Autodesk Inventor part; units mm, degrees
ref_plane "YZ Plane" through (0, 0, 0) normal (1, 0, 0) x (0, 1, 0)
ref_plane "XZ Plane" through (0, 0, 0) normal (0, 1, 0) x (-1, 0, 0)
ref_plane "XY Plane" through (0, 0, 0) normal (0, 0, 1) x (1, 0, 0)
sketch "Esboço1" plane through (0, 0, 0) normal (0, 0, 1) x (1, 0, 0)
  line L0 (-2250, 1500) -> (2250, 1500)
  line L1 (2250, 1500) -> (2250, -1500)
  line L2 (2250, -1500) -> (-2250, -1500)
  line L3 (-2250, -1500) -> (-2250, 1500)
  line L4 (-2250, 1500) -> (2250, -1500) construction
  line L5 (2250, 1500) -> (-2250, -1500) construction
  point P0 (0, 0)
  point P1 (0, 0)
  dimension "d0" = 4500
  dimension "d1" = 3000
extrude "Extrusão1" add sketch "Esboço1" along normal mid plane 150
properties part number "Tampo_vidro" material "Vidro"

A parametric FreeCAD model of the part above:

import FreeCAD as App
import Part
import Sketcher
from FreeCAD import Vector

doc = App.newDocument("Part")
body = doc.addObject("PartDesign::Body", "Body")

sketch1 = body.newObject("Sketcher::SketchObject", "Sketch")
sketch1.AttachmentSupport = (doc.getObject("XY_Plane"), [""])
sketch1.MapMode = "FlatFace"
sketch1.addGeometry([
    Part.LineSegment(Vector(2250, 1500, 0), Vector(-2250, 1500, 0)),
    Part.LineSegment(Vector(-2250, 1500, 0), Vector(-2250, -1500, 0)),
    Part.LineSegment(Vector(-2250, -1500, 0), Vector(2250, -1500, 0)),
    Part.LineSegment(Vector(2250, -1500, 0), Vector(2250, 1500, 0)),
], False)
sketch1.addConstraint([
    Sketcher.Constraint("Coincident", 0, 2, 1, 1),
    Sketcher.Constraint("Coincident", 1, 2, 2, 1),
    Sketcher.Constraint("Coincident", 2, 2, 3, 1),
    Sketcher.Constraint("Coincident", 3, 2, 0, 1),
    Sketcher.Constraint("Horizontal", 0),
    Sketcher.Constraint("Vertical", 1),
    Sketcher.Constraint("Horizontal", 2),
    Sketcher.Constraint("Vertical", 3),
    Sketcher.Constraint("Symmetric", 0, 2, 2, 2, -1, 1),
    Sketcher.Constraint("DistanceX", 0, 2, 0, 1, 4500.0),
    Sketcher.Constraint("DistanceY", 1, 2, 1, 1, 3000.0),
])
pad1 = body.newObject("PartDesign::Pad", "Pad")
pad1.Profile = sketch1
pad1.Length = 150
pad1.Midplane = True

doc.recompute()
